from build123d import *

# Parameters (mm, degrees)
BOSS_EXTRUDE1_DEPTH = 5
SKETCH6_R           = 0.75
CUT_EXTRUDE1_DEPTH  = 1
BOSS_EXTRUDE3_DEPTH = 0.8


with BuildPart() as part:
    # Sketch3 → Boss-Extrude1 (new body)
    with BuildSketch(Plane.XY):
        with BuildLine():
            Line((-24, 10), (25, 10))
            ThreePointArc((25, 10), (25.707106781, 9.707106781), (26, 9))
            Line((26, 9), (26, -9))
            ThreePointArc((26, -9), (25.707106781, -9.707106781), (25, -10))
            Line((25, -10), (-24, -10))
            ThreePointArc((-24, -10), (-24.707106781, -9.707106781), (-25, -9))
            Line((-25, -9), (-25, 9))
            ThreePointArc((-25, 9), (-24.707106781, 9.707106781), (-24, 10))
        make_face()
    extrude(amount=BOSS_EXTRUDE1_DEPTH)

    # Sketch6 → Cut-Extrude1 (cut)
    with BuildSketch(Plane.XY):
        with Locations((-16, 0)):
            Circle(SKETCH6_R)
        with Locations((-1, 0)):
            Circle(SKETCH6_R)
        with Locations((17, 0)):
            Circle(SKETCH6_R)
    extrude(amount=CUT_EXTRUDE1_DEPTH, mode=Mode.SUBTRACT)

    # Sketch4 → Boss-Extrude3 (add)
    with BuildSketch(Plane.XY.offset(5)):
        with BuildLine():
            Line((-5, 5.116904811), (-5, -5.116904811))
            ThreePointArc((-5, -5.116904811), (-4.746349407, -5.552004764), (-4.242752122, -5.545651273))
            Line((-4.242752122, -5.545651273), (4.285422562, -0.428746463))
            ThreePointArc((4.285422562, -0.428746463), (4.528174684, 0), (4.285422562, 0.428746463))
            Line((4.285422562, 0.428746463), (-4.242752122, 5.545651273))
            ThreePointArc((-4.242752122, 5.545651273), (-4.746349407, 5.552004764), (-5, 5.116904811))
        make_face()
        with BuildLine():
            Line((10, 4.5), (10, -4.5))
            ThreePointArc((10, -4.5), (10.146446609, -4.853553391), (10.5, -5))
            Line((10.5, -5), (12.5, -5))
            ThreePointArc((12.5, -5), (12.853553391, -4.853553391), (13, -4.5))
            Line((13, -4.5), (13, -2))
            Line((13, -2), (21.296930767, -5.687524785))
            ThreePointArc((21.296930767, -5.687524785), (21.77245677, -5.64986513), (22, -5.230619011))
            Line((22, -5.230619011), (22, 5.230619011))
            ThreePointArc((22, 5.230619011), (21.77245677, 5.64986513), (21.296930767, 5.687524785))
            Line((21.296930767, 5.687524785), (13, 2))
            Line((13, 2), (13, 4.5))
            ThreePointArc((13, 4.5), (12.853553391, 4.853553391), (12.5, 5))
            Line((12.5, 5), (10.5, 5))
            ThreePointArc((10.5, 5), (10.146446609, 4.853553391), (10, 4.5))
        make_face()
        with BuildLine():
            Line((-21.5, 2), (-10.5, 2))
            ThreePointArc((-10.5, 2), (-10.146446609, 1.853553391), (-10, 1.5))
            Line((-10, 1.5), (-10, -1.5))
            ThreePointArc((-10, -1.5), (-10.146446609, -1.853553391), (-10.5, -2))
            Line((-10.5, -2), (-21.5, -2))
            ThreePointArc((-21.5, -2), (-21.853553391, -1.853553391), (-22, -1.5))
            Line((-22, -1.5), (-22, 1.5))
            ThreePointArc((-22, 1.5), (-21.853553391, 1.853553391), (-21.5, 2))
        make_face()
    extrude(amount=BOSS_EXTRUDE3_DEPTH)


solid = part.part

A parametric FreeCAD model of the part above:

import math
import FreeCAD as App
import Part
import Sketcher
Q = App.Units.Quantity

doc = App.newDocument("Part")
params = doc.addObject("Spreadsheet::Sheet", "Params")
for row, (alias, value) in enumerate([
    ("sketch1_radius", "1 mm"),
    ("sketch1_width", "49 mm"),
    ("sketch1_height", "18 mm"),
    ("pad1_length", "5 mm"),
    ("sketch2_diameter", "1.5 mm"),
    ("pocket1_length", "1 mm"),
    ("sketch3_radius", "0.5 mm"),
    ("sketch3_radius2", "0.5 mm"),
    ("sketch3_radius3", "0.5 mm"),
    ("sketch3_radius4", "0.5 mm"),
    ("sketch3_radius5", "0.5 mm"),
    ("pad2_length", "0.8 mm"),
], start=1):
    params.set(f"A{row}", alias)
    params.set(f"B{row}", "=" + value)
    params.setAlias(f"B{row}", alias)

body = doc.addObject("PartDesign::Body", "Body")

# Sketch on XY plane
sketch1 = body.newObject("Sketcher::SketchObject", "Sketch")
sketch1.AttachmentSupport = (doc.getObject("XY_Plane"), [""])
sketch1.MapMode = "FlatFace"
sketch1.addGeometry([
    Part.LineSegment(App.Vector(25, 10, 0), App.Vector(-24, 10, 0)),  # 0
    Part.ArcOfCircle(Part.Circle(App.Vector(-24, 9, 0), App.Vector(0, 0, 1), 1), math.radians(90), math.radians(180)),  # 1
    Part.LineSegment(App.Vector(-25, 9, 0), App.Vector(-25, -9, 0)),  # 2
    Part.ArcOfCircle(Part.Circle(App.Vector(-24, -9, 0), App.Vector(0, 0, 1), 1), math.radians(-180), math.radians(-90)),  # 3
    Part.LineSegment(App.Vector(-24, -10, 0), App.Vector(25, -10, 0)),  # 4
    Part.ArcOfCircle(Part.Circle(App.Vector(25, -9, 0), App.Vector(0, 0, 1), 1), math.radians(-90), math.radians(0)),  # 5
    Part.LineSegment(App.Vector(26, -9, 0), App.Vector(26, 9, 0)),  # 6
    Part.ArcOfCircle(Part.Circle(App.Vector(25, 9, 0), App.Vector(0, 0, 1), 1), math.radians(0), math.radians(90)),  # 7
], False)
sketch1.addConstraint([
    Sketcher.Constraint("Tangent", 0, 2, 1, 1),
    Sketcher.Constraint("Tangent", 1, 2, 2, 1),
    Sketcher.Constraint("Tangent", 2, 2, 3, 1),
    Sketcher.Constraint("Tangent", 3, 2, 4, 1),
    Sketcher.Constraint("Tangent", 4, 2, 5, 1),
    Sketcher.Constraint("Tangent", 5, 2, 6, 1),
    Sketcher.Constraint("Tangent", 6, 2, 7, 1),
    Sketcher.Constraint("Tangent", 7, 2, 0, 1),
    Sketcher.Constraint("Horizontal", 0),
    Sketcher.Constraint("Vertical", 2),
    Sketcher.Constraint("Horizontal", 4),
    Sketcher.Constraint("Vertical", 6),
    Sketcher.Constraint("Equal", 1, 3),
    Sketcher.Constraint("Equal", 3, 5),
    Sketcher.Constraint("Equal", 5, 7),
    Sketcher.Constraint("Radius", 1, Q("1 mm")),
    Sketcher.Constraint("DistanceX", 0, 2, 0, 1, Q("49 mm")),
    Sketcher.Constraint("DistanceY", 2, 2, 2, 1, Q("18 mm")),
    Sketcher.Constraint("DistanceX", 1, 3, -1, 1, Q("24 mm")),
    Sketcher.Constraint("DistanceY", -1, 1, 1, 3, Q("9 mm")),
])
sketch1.setExpression("Constraints[15]", "Params.sketch1_radius")
sketch1.setExpression("Constraints[16]", "Params.sketch1_width")
sketch1.setExpression("Constraints[17]", "Params.sketch1_height")
pad1 = body.newObject("PartDesign::Pad", "Pad")
pad1.Profile = sketch1
pad1.setExpression("Length", "Params.pad1_length")

# Sketch on XY plane
sketch2 = body.newObject("Sketcher::SketchObject", "Sketch001")
sketch2.AttachmentSupport = (doc.getObject("XY_Plane"), [""])
sketch2.MapMode = "FlatFace"
sketch2.addGeometry([
    Part.Circle(App.Vector(-16, 0, 0), App.Vector(0, 0, 1), 0.8),
    Part.Circle(App.Vector(-1, 0, 0), App.Vector(0, 0, 1), 0.8),
    Part.Circle(App.Vector(17, 0, 0), App.Vector(0, 0, 1), 0.8),
], False)
sketch2.addConstraint([
    Sketcher.Constraint("Equal", 0, 1),
    Sketcher.Constraint("Equal", 1, 2),
    Sketcher.Constraint("PointOnObject", 0, 3, -1),
    Sketcher.Constraint("PointOnObject", 1, 3, -1),
    Sketcher.Constraint("PointOnObject", 2, 3, -1),
    Sketcher.Constraint("Diameter", 0, Q("1.5 mm")),
    Sketcher.Constraint("DistanceX", 0, 3, -1, 1, Q("16 mm")),
    Sketcher.Constraint("DistanceX", 1, 3, -1, 1, Q("1 mm")),
    Sketcher.Constraint("DistanceX", -1, 1, 2, 3, Q("17 mm")),
])
sketch2.setExpression("Constraints[5]", "Params.sketch2_diameter")
pocket1 = body.newObject("PartDesign::Pocket", "Pocket")
pocket1.Profile = sketch2
pocket1.setExpression("Length", "Params.pocket1_length")
pocket1.Reversed = True

# Sketch on XY plane
sketch3 = body.newObject("Sketcher::SketchObject", "Sketch002")
sketch3.AttachmentSupport = (doc.getObject("XY_Plane"), [""])
sketch3.MapMode = "FlatFace"
sketch3.AttachmentOffset = App.Placement(App.Vector(0, 0, 5), App.Rotation())
sketch3.addGeometry([
    Part.LineSegment(App.Vector(-5, 5.116905, 0), App.Vector(-5, -5.116905, 0)),  # 0
    Part.ArcOfCircle(Part.Circle(App.Vector(-4.5, -5.116905, 0), App.Vector(0, 0, 1), 0.5), math.radians(-180), math.radians(-59.036243)),  # 1
    Part.LineSegment(App.Vector(-4.242752, -5.545651, 0), App.Vector(4.285423, -0.428746, 0)),  # 2
    Part.ArcOfCircle(Part.Circle(App.Vector(4.028175, 0, 0), App.Vector(0, 0, 1), 0.5), math.radians(-59.036243), math.radians(59.036243)),  # 3
    Part.LineSegment(App.Vector(4.285423, 0.428746, 0), App.Vector(-4.242752, 5.545651, 0)),  # 4
    Part.ArcOfCircle(Part.Circle(App.Vector(-4.5, 5.116905, 0), App.Vector(0, 0, 1), 0.5), math.radians(59.036243), math.radians(180)),  # 5
    Part.LineSegment(App.Vector(10, 4.5, 0), App.Vector(10, -4.5, 0)),  # 6
    Part.ArcOfCircle(Part.Circle(App.Vector(10.5, -4.5, 0), App.Vector(0, 0, 1), 0.5), math.radians(180), math.radians(270)),  # 7
    Part.LineSegment(App.Vector(10.5, -5, 0), App.Vector(12.5, -5, 0)),  # 8
    Part.ArcOfCircle(Part.Circle(App.Vector(12.5, -4.5, 0), App.Vector(0, 0, 1), 0.5), math.radians(-90), math.radians(0)),  # 9
    Part.LineSegment(App.Vector(13, -4.5, 0), App.Vector(13, -2, 0)),  # 10
    Part.LineSegment(App.Vector(13, -2, 0), App.Vector(21.296931, -5.687525, 0)),  # 11
    Part.ArcOfCircle(Part.Circle(App.Vector(21.5, -5.230619, 0), App.Vector(0, 0, 1), 0.5), math.radians(-113.962489), math.radians(0)),  # 12
    Part.LineSegment(App.Vector(22, -5.230619, 0), App.Vector(22, 5.230619, 0)),  # 13
    Part.ArcOfCircle(Part.Circle(App.Vector(21.5, 5.230619, 0), App.Vector(0, 0, 1), 0.5), math.radians(0), math.radians(113.962489)),  # 14
    Part.LineSegment(App.Vector(21.296931, 5.687525, 0), App.Vector(13, 2, 0)),  # 15
    Part.LineSegment(App.Vector(13, 2, 0), App.Vector(13, 4.5, 0)),  # 16
    Part.ArcOfCircle(Part.Circle(App.Vector(12.5, 4.5, 0), App.Vector(0, 0, 1), 0.5), math.radians(0), math.radians(90)),  # 17
    Part.LineSegment(App.Vector(12.5, 5, 0), App.Vector(10.5, 5, 0)),  # 18
    Part.ArcOfCircle(Part.Circle(App.Vector(10.5, 4.5, 0), App.Vector(0, 0, 1), 0.5), math.radians(90), math.radians(180)),  # 19
    Part.LineSegment(App.Vector(-10.5, 2, 0), App.Vector(-21.5, 2, 0)),  # 20
    Part.ArcOfCircle(Part.Circle(App.Vector(-21.5, 1.5, 0), App.Vector(0, 0, 1), 0.5), math.radians(90), math.radians(180)),  # 21
    Part.LineSegment(App.Vector(-22, 1.5, 0), App.Vector(-22, -1.5, 0)),  # 22
    Part.ArcOfCircle(Part.Circle(App.Vector(-21.5, -1.5, 0), App.Vector(0, 0, 1), 0.5), math.radians(180), math.radians(270)),  # 23
    Part.LineSegment(App.Vector(-21.5, -2, 0), App.Vector(-10.5, -2, 0)),  # 24
    Part.ArcOfCircle(Part.Circle(App.Vector(-10.5, -1.5, 0), App.Vector(0, 0, 1), 0.5), math.radians(-90), math.radians(0)),  # 25
    Part.LineSegment(App.Vector(-10, -1.5, 0), App.Vector(-10, 1.5, 0)),  # 26
    Part.ArcOfCircle(Part.Circle(App.Vector(-10.5, 1.5, 0), App.Vector(0, 0, 1), 0.5), math.radians(0), math.radians(90)),  # 27
], False)
sketch3.addConstraint([
    Sketcher.Constraint("Coincident", 0, 2, 1, 1),
    Sketcher.Constraint("Coincident", 1, 2, 2, 1),
    Sketcher.Constraint("Coincident", 2, 2, 3, 1),
    Sketcher.Constraint("Coincident", 3, 2, 4, 1),
    Sketcher.Constraint("Coincident", 4, 2, 5, 1),
    Sketcher.Constraint("Coincident", 5, 2, 0, 1),
    Sketcher.Constraint("Coincident", 6, 2, 7, 1),
    Sketcher.Constraint("Coincident", 7, 2, 8, 1),
    Sketcher.Constraint("Coincident", 8, 2, 9, 1),
    Sketcher.Constraint("Coincident", 9, 2, 10, 1),
    Sketcher.Constraint("Coincident", 10, 2, 11, 1),
    Sketcher.Constraint("Coincident", 11, 2, 12, 1),
    Sketcher.Constraint("Coincident", 12, 2, 13, 1),
    Sketcher.Constraint("Coincident", 13, 2, 14, 1),
    Sketcher.Constraint("Coincident", 14, 2, 15, 1),
    Sketcher.Constraint("Coincident", 15, 2, 16, 1),
    Sketcher.Constraint("Coincident", 16, 2, 17, 1),
    Sketcher.Constraint("Coincident", 17, 2, 18, 1),
    Sketcher.Constraint("Coincident", 18, 2, 19, 1),
    Sketcher.Constraint("Coincident", 19, 2, 6, 1),
    Sketcher.Constraint("Coincident", 20, 2, 21, 1),
    Sketcher.Constraint("Coincident", 21, 2, 22, 1),
    Sketcher.Constraint("Coincident", 22, 2, 23, 1),
    Sketcher.Constraint("Coincident", 23, 2, 24, 1),
    Sketcher.Constraint("Coincident", 24, 2, 25, 1),
    Sketcher.Constraint("Coincident", 25, 2, 26, 1),
    Sketcher.Constraint("Coincident", 26, 2, 27, 1),
    Sketcher.Constraint("Coincident", 27, 2, 20, 1),
    Sketcher.Constraint("Vertical", 0),
    Sketcher.Constraint("Vertical", 6),
    Sketcher.Constraint("Horizontal", 8),
    Sketcher.Constraint("Vertical", 10),
    Sketcher.Constraint("Vertical", 13),
    Sketcher.Constraint("Vertical", 16),
    Sketcher.Constraint("Horizontal", 18),
    Sketcher.Constraint("Horizontal", 20),
    Sketcher.Constraint("Vertical", 22),
    Sketcher.Constraint("Horizontal", 24),
    Sketcher.Constraint("Vertical", 26),
    Sketcher.Constraint("PointOnObject", 3, 3, -1),
    Sketcher.Constraint("Radius", 1, Q("0.5 mm")),
    Sketcher.Constraint("Radius", 3, Q("0.5 mm")),
    Sketcher.Constraint("Radius", 5, Q("0.5 mm")),
    Sketcher.Constraint("Radius", 7, Q("0.5 mm")),
    Sketcher.Constraint("Radius", 9, Q("0.5 mm")),
    Sketcher.Constraint("Radius", 12, Q("0.5 mm")),
    Sketcher.Constraint("Radius", 14, Q("0.5 mm")),
    Sketcher.Constraint("Radius", 17, Q("0.5 mm")),
    Sketcher.Constraint("Radius", 19, Q("0.5 mm")),
    Sketcher.Constraint("Radius", 21, Q("0.5 mm")),
    Sketcher.Constraint("Radius", 23, Q("0.5 mm")),
    Sketcher.Constraint("Radius", 25, Q("0.5 mm")),
    Sketcher.Constraint("Radius", 27, Q("0.5 mm")),
    Sketcher.Constraint("DistanceX", 8, 1, 8, 2, Q("2 mm")),
    Sketcher.Constraint("DistanceX", 18, 2, 18, 1, Q("2 mm")),
    Sketcher.Constraint("DistanceX", 20, 2, 20, 1, Q("11 mm")),
    Sketcher.Constraint("DistanceX", 24, 1, 24, 2, Q("11 mm")),
    Sketcher.Constraint("DistanceY", 6, 2, 6, 1, Q("9 mm")),
    Sketcher.Constraint("DistanceY", 22, 2, 22, 1, Q("3 mm")),
    Sketcher.Constraint("DistanceY", 26, 1, 26, 2, Q("3 mm")),
    Sketcher.Constraint("DistanceY", 10, 1, 10, 2, Q("2.5 mm")),
    Sketcher.Constraint("DistanceY", 16, 1, 16, 2, Q("2.5 mm")),
    Sketcher.Constraint("DistanceX", 0, 2, -1, 1, Q("5 mm")),
    Sketcher.Constraint("DistanceX", -1, 1, 6, 2, Q("10 mm")),
    Sketcher.Constraint("DistanceY", 7, 2, -1, 1, Q("5 mm")),
    Sketcher.Constraint("DistanceX", -1, 1, 9, 2, Q("13 mm")),
    Sketcher.Constraint("DistanceY", 10, 2, -1, 1, Q("2 mm")),
    Sketcher.Constraint("DistanceX", -1, 1, 12, 2, Q("22 mm")),
    Sketcher.Constraint("DistanceX", -1, 1, 15, 2, Q("13 mm")),
    Sketcher.Constraint("DistanceY", -1, 1, 15, 2, Q("2 mm")),
    Sketcher.Constraint("DistanceY", -1, 1, 17, 2, Q("5 mm")),
    Sketcher.Constraint("DistanceY", -1, 1, 20, 2, Q("2 mm")),
    Sketcher.Constraint("DistanceX", 21, 2, -1, 1, Q("22 mm")),
    Sketcher.Constraint("DistanceY", 23, 2, -1, 1, Q("2 mm")),
    Sketcher.Constraint("DistanceX", 25, 2, -1, 1, Q("10 mm")),
    Sketcher.Constraint("DistanceX", 7, 2, 9, 3, Q("2 mm")),
    Sketcher.Constraint("DistanceX", 19, 3, 17, 2, Q("2 mm")),
    Sketcher.Constraint("DistanceX", 20, 2, 27, 3, Q("11 mm")),
    Sketcher.Constraint("DistanceY", 23, 3, 21, 2, Q("3 mm")),
    Sketcher.Constraint("DistanceX", 24, 2, 1, 3, Q("6 mm")),
    Sketcher.Constraint("DistanceY", 25, 2, 27, 3, Q("3 mm")),
    Sketcher.Constraint("DistanceY", 6, 2, -1, 1, Q("4.5 mm")),
    Sketcher.Constraint("DistanceY", 0, 2, 0, 1, Q("10.23381 mm")),
    Sketcher.Constraint("DistanceY", 13, 1, 13, 2, Q("10.461238 mm")),
    Sketcher.Constraint("DistanceY", 12, 3, -1, 1, Q("5.230619 mm")),
    Sketcher.Constraint("DistanceY", -1, 1, 14, 3, Q("5.230619 mm")),
    Sketcher.Constraint("DistanceY", 1, 2, -1, 1, Q("5.545651 mm")),
    Sketcher.Constraint("DistanceY", -1, 1, 4, 2, Q("5.545651 mm")),
    Sketcher.Constraint("DistanceX", -1, 1, 11, 2, Q("21.296931 mm")),
    Sketcher.Constraint("DistanceY", 12, 2, -1, 1, Q("5.230619 mm")),
    Sketcher.Constraint("DistanceX", -1, 1, 14, 2, Q("21.296931 mm")),
    Sketcher.Constraint("DistanceY", 1, 3, 5, 3, Q("10.23381 mm")),
    Sketcher.Constraint("DistanceY", 0, 2, 5, 3, Q("10.23381 mm")),
    Sketcher.Constraint("Distance", 2, Q("9.945475 mm")),
    Sketcher.Constraint("Distance", 4, Q("9.945475 mm")),
    Sketcher.Constraint("DistanceY", 1, 3, -1, 1, Q("5.116905 mm")),
    Sketcher.Constraint("DistanceX", -1, 1, 3, 3, Q("4.028175 mm")),
])
sketch3.setExpression("Constraints[40]", "Params.sketch3_radius")
sketch3.setExpression("Constraints[41]", "Params.sketch3_radius2")
sketch3.setExpression("Constraints[42]", "Params.sketch3_radius3")
sketch3.setExpression("Constraints[43]", "Params.sketch3_radius4")
sketch3.setExpression("Constraints[44]", "Params.sketch3_radius5")
pad2 = body.newObject("PartDesign::Pad", "Pad001")
pad2.Profile = sketch3
pad2.setExpression("Length", "Params.pad2_length")

doc.recompute()
